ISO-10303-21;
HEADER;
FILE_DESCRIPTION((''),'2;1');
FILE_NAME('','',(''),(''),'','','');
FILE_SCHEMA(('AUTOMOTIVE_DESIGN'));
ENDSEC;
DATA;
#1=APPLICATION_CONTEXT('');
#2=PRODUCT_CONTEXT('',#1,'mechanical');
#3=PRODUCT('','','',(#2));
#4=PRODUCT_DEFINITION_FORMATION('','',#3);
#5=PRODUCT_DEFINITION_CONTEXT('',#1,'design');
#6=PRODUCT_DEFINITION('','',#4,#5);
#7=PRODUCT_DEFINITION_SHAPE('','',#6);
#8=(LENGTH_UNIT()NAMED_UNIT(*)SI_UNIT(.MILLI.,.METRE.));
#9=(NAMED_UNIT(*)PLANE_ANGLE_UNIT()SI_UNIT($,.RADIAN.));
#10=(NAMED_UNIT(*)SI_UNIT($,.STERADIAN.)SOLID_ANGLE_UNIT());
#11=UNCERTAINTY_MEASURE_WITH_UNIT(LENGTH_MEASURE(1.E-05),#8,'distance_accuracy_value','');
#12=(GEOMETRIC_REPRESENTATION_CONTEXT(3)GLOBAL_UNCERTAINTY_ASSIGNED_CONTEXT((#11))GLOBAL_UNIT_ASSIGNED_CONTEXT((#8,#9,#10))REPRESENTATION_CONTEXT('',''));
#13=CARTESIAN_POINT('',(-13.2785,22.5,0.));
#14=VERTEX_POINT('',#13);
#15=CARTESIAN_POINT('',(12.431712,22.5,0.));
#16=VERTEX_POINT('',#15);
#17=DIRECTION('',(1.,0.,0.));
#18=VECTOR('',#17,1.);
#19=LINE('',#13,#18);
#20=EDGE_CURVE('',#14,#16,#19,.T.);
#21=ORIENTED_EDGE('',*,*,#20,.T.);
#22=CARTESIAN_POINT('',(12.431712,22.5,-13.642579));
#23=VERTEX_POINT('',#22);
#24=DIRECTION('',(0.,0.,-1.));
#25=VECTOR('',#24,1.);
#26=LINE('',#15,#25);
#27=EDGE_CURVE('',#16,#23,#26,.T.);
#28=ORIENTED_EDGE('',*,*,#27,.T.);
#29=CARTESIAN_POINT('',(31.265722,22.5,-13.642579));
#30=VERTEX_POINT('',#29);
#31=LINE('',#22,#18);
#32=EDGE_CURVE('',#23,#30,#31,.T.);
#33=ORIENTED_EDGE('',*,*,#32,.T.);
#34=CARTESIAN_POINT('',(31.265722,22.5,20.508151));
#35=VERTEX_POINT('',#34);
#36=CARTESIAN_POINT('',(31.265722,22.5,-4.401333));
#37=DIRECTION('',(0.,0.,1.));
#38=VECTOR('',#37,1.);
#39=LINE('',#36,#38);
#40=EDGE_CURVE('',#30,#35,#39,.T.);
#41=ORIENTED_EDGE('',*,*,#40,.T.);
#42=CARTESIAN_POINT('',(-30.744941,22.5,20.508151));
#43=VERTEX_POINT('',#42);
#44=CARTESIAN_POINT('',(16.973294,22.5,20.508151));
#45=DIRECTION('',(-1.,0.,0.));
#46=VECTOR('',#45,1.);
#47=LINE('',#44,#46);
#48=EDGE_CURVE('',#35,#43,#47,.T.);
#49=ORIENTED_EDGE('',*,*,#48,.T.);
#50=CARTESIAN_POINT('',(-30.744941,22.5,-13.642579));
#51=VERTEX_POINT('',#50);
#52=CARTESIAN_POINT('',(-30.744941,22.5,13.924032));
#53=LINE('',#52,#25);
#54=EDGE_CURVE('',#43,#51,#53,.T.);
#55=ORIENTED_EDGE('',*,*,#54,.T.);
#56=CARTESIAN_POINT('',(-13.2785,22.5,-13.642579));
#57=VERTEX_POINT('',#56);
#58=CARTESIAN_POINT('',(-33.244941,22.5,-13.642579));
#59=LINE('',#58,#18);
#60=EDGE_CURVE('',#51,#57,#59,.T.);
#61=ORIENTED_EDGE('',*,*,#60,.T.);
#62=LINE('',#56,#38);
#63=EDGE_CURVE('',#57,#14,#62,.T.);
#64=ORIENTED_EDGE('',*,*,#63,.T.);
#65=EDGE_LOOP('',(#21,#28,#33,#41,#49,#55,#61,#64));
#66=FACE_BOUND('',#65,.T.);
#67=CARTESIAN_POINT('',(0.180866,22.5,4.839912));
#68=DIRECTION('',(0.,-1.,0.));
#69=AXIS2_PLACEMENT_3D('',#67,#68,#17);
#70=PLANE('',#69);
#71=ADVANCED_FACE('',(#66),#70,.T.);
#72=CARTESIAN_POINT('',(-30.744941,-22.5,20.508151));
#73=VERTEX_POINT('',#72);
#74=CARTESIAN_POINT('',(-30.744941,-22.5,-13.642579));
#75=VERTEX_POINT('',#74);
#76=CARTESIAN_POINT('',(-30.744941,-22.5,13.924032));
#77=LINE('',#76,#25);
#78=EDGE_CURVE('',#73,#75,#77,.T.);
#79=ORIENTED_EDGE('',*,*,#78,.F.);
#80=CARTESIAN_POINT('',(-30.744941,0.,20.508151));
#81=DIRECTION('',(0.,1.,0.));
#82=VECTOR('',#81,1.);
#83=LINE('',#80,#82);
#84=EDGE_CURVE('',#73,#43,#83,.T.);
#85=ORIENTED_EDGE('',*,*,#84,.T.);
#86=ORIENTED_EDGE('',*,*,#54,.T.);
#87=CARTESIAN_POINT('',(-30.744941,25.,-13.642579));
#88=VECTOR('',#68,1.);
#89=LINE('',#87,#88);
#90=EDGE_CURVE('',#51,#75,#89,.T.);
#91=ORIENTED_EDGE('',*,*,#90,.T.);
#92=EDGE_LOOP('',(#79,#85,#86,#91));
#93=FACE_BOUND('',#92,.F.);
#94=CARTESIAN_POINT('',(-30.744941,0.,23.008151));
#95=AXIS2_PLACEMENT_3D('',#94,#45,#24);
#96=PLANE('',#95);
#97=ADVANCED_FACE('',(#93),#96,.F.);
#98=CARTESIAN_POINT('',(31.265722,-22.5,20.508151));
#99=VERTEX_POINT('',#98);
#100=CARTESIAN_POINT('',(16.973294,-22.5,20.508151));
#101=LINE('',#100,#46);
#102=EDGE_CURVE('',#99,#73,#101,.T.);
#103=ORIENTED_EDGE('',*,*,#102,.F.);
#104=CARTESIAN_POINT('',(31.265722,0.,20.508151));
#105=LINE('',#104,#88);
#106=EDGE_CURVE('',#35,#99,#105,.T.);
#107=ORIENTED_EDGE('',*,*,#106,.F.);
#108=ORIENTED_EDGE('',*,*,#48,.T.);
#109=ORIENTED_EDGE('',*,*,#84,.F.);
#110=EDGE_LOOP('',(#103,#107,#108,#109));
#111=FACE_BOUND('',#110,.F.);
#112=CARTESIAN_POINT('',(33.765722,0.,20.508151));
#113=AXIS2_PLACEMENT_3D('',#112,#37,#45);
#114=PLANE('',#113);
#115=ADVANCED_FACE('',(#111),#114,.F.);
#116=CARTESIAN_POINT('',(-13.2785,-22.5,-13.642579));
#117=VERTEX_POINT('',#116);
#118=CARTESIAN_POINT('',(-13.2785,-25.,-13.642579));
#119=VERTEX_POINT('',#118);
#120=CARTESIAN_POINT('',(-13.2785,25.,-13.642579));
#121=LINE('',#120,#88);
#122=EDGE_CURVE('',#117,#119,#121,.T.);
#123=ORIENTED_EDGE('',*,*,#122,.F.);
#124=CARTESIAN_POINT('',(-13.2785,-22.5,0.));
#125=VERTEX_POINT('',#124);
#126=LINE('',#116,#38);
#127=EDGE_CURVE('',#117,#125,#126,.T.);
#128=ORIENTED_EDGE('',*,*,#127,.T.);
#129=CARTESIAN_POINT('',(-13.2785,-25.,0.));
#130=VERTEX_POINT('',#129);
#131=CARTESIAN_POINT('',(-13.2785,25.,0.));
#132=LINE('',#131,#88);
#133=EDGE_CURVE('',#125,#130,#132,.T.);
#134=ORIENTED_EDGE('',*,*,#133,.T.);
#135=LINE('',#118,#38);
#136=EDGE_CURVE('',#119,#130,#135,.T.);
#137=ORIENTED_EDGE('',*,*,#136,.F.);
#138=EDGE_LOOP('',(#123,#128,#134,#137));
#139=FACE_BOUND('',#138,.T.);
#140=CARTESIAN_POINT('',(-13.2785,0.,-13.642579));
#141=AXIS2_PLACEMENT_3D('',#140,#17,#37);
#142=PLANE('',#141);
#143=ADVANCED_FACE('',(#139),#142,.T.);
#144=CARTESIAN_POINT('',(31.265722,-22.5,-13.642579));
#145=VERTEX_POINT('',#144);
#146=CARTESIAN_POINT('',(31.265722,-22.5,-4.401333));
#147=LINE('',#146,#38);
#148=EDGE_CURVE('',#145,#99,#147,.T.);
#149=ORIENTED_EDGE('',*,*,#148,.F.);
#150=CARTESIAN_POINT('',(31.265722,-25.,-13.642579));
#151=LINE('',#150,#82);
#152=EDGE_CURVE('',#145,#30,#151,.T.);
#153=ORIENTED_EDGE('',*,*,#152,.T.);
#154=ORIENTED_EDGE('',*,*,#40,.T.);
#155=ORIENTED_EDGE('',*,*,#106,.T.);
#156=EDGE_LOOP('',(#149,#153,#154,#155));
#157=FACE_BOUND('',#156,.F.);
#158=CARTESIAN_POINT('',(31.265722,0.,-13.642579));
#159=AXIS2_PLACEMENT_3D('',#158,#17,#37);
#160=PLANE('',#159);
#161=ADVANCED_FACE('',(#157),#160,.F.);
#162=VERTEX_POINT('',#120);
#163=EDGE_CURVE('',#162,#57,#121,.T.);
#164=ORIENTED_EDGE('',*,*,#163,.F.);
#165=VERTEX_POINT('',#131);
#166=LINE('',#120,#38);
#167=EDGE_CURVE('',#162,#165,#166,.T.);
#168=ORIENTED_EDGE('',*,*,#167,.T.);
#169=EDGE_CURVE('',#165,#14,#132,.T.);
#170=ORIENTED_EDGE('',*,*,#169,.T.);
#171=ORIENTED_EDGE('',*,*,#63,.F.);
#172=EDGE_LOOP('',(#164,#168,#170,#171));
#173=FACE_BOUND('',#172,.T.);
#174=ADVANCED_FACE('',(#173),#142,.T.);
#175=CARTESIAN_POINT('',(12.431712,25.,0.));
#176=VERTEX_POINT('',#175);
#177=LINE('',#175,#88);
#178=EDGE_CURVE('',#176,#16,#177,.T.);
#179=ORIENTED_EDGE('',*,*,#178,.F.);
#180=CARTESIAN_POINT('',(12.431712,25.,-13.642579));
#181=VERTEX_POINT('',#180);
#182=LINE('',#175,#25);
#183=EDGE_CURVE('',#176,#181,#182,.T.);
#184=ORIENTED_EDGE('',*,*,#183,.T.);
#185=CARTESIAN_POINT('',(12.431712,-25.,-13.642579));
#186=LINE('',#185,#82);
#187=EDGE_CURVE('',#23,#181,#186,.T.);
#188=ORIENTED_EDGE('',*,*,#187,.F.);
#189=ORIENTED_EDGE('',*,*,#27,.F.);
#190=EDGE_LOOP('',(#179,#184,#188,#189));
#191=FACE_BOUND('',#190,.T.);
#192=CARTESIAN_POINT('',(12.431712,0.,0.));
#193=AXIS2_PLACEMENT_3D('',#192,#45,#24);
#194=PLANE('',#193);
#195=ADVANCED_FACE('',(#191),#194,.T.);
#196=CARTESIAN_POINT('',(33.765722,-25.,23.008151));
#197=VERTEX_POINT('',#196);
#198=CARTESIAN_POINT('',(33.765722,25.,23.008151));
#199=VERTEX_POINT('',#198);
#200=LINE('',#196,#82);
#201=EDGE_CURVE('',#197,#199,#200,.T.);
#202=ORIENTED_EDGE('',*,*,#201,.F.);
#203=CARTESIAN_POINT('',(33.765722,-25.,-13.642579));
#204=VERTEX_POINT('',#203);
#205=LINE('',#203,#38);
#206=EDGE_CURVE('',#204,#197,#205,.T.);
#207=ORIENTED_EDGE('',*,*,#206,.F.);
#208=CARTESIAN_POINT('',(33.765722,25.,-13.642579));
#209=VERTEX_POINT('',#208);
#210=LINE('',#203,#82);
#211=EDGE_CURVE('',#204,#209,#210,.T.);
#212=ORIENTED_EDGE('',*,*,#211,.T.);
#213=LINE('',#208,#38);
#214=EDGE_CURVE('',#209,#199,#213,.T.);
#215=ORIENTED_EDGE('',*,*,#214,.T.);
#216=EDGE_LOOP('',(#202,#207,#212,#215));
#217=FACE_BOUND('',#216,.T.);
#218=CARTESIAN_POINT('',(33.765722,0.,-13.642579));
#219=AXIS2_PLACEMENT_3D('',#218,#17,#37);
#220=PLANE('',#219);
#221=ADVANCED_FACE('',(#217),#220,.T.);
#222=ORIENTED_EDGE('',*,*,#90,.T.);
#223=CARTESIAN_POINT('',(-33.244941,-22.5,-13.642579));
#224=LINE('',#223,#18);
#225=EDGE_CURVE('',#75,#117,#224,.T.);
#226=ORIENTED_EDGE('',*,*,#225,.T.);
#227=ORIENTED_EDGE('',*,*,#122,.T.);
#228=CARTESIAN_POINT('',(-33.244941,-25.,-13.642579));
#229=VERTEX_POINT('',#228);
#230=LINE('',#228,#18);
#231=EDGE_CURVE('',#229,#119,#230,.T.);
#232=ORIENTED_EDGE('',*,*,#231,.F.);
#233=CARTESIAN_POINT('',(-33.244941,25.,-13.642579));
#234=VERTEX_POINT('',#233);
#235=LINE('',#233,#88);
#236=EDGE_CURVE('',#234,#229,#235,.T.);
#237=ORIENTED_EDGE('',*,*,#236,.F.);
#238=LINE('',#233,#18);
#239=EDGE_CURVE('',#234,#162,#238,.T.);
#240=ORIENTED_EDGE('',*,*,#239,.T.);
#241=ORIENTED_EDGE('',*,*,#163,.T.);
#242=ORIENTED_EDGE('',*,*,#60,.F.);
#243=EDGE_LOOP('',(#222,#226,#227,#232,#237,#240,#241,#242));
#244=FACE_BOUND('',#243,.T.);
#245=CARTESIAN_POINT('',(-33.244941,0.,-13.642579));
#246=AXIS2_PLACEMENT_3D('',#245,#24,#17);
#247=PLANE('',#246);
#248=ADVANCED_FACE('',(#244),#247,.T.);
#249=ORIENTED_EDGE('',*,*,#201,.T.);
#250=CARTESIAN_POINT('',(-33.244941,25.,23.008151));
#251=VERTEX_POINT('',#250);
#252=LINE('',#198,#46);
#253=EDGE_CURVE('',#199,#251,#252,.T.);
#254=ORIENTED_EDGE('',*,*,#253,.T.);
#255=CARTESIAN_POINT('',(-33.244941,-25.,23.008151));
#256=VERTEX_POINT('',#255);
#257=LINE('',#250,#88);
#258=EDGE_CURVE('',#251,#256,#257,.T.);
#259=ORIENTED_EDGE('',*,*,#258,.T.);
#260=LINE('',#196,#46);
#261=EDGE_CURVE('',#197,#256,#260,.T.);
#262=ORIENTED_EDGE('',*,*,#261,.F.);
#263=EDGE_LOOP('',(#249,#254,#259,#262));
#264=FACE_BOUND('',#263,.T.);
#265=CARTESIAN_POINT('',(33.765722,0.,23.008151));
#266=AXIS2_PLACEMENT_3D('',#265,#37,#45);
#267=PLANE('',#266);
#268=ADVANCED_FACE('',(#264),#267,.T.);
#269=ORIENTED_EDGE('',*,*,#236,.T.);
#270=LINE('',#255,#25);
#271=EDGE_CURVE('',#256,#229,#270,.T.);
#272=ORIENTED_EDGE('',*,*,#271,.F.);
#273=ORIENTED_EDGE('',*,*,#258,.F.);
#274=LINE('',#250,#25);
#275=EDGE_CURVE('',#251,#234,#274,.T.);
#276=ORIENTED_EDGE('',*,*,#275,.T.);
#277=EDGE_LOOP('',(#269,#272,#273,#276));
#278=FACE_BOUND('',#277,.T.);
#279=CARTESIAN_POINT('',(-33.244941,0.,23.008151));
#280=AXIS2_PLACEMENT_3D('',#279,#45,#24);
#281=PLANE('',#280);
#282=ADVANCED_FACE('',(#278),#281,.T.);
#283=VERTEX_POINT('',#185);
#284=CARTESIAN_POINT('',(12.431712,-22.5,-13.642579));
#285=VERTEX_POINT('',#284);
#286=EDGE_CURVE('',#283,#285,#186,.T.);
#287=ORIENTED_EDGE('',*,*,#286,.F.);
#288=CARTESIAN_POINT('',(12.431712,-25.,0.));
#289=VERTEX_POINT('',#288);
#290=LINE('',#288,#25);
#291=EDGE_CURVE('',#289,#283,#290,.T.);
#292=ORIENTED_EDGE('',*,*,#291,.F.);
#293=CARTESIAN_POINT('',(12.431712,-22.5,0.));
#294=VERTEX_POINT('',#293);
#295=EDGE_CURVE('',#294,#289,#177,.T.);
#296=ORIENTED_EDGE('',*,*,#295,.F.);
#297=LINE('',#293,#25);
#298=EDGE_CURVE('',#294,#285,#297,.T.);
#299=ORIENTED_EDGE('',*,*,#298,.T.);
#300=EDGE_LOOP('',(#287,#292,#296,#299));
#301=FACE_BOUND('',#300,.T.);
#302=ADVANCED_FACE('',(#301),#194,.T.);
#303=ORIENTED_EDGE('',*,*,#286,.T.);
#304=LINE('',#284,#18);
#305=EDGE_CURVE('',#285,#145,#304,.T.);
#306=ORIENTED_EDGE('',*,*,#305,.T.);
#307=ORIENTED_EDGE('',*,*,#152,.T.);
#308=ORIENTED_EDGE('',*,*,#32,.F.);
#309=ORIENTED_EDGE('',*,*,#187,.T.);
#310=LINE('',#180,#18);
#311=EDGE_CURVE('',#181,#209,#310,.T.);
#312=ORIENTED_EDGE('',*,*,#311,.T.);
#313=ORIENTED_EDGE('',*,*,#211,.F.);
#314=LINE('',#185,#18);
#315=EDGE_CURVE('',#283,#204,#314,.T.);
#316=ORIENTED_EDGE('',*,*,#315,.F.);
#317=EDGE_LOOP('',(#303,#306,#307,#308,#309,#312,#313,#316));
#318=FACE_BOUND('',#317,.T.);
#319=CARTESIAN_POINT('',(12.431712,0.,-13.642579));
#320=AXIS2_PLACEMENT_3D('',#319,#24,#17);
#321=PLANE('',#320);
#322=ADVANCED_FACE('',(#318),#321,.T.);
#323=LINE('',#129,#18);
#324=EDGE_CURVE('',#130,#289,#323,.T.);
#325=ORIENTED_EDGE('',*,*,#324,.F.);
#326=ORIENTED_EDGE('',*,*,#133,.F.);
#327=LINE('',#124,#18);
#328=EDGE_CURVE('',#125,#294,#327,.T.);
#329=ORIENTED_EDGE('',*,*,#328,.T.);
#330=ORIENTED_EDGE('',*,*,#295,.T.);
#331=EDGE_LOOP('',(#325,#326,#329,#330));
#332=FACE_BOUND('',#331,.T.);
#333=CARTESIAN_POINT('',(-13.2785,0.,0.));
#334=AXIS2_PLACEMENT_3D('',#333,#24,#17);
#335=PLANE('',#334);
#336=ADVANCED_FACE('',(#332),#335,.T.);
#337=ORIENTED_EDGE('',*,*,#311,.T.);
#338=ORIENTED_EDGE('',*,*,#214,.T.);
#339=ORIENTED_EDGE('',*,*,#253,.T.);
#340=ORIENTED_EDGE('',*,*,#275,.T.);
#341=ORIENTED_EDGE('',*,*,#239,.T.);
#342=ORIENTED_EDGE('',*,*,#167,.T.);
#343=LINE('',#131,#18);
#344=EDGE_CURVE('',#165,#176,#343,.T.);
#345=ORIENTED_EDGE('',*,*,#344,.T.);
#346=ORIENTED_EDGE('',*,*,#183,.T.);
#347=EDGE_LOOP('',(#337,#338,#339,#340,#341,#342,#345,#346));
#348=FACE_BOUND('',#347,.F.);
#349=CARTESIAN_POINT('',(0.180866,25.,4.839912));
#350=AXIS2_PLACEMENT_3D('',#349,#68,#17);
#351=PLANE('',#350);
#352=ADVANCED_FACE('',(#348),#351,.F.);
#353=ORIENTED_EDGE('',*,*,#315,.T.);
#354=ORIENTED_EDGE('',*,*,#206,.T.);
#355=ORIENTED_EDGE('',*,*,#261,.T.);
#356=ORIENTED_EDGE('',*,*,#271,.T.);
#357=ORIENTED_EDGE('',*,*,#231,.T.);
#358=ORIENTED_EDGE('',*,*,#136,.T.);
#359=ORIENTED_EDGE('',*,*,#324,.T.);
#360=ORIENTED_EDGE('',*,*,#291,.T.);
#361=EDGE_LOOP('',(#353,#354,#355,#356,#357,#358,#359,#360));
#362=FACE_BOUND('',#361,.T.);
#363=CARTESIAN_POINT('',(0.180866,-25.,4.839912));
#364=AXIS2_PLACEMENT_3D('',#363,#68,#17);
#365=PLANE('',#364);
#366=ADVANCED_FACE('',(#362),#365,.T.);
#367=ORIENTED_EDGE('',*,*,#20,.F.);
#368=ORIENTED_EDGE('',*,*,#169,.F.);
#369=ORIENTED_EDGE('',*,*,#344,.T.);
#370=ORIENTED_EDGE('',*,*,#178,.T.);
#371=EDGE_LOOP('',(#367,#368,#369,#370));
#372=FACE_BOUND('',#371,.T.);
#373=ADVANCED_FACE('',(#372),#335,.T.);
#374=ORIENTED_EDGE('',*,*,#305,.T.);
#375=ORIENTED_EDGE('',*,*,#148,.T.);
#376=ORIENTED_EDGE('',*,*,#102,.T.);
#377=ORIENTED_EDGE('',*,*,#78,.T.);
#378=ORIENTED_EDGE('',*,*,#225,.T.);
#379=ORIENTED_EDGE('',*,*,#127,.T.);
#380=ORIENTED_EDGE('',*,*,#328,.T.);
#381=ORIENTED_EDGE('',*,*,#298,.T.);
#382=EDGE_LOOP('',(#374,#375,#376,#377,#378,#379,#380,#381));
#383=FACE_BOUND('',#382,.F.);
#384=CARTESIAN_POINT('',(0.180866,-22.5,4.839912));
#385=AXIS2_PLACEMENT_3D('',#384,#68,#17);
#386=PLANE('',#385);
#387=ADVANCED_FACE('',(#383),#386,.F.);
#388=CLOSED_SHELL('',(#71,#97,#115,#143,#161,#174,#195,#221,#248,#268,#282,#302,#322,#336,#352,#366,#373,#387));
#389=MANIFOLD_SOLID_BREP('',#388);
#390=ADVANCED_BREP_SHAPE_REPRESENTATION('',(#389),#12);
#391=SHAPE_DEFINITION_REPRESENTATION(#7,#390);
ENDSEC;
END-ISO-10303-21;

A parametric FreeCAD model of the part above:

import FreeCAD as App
import Part
import Sketcher
Q = App.Units.Quantity


def faces_at(feature, points):
    """Names of the faces that lie closest to the given points."""
    faces = feature.Shape.Faces
    near = lambda p: min(range(len(faces)), key=lambda i: faces[i].distToShape(Part.Vertex(*p))[0])
    return sorted({f"Face{near(p) + 1}" for p in points})

doc = App.newDocument("Part")
body = doc.addObject("PartDesign::Body", "Body")

sketch1 = body.newObject("Sketcher::SketchObject", "Sketch")
sketch1.AttachmentSupport = (doc.getObject("XZ_Plane"), [""])
sketch1.MapMode = "FlatFace"
sketch1.addGeometry([
    Part.LineSegment(App.Vector(34, 23, 0), App.Vector(-33, 23, 0)),
    Part.LineSegment(App.Vector(-33, 23, 0), App.Vector(-33, -14, 0)),
    Part.LineSegment(App.Vector(-33, -14, 0), App.Vector(-13, -14, 0)),
    Part.LineSegment(App.Vector(-13, -14, 0), App.Vector(-13, 0, 0)),
    Part.LineSegment(App.Vector(-13, 0, 0), App.Vector(12, 0, 0)),
    Part.LineSegment(App.Vector(12, 0, 0), App.Vector(12, -14, 0)),
    Part.LineSegment(App.Vector(12, -14, 0), App.Vector(34, -14, 0)),
    Part.LineSegment(App.Vector(34, -14, 0), App.Vector(34, 23, 0)),
], False)
sketch1.addConstraint([
    Sketcher.Constraint("Coincident", 0, 2, 1, 1),
    Sketcher.Constraint("Coincident", 1, 2, 2, 1),
    Sketcher.Constraint("Coincident", 2, 2, 3, 1),
    Sketcher.Constraint("Coincident", 3, 2, 4, 1),
    Sketcher.Constraint("Coincident", 4, 2, 5, 1),
    Sketcher.Constraint("Coincident", 5, 2, 6, 1),
    Sketcher.Constraint("Coincident", 6, 2, 7, 1),
    Sketcher.Constraint("Coincident", 7, 2, 0, 1),
    Sketcher.Constraint("Horizontal", 0),
    Sketcher.Constraint("Vertical", 1),
    Sketcher.Constraint("Horizontal", 2),
    Sketcher.Constraint("Vertical", 3),
    Sketcher.Constraint("Horizontal", 4),
    Sketcher.Constraint("Vertical", 5),
    Sketcher.Constraint("Horizontal", 6),
    Sketcher.Constraint("Vertical", 7),
    Sketcher.Constraint("PointOnObject", 3, 2, -1),
    Sketcher.Constraint("Horizontal", 2, 2, 5, 2),
    Sketcher.Constraint("DistanceX", 2, 1, 2, 2, Q("19.966441 mm")),
    Sketcher.Constraint("DistanceX", 4, 1, 4, 2, Q("25.710212 mm")),
    Sketcher.Constraint("DistanceX", 6, 1, 6, 2, Q("21.33401 mm")),
    Sketcher.Constraint("DistanceY", 1, 2, 1, 1, Q("36.65073 mm")),
    Sketcher.Constraint("DistanceY", 3, 1, 3, 2, Q("13.642579 mm")),
    Sketcher.Constraint("DistanceX", 2, 2, -1, 1, Q("13.2785 mm")),
])
pad1 = body.newObject("PartDesign::Pad", "Pad")
pad1.Profile = sketch1
pad1.Length = 50
pad1.Midplane = True
doc.recompute()

thickness = body.newObject("PartDesign::Thickness", "Thickness")
thickness.Base = (pad1, faces_at(pad1, [
    (-0.423, 0, 0),
    (23.099, 0, -13.643),
    (-23.262, 0, -13.643),
    (-13.278, 0, -6.821),
    (12.432, 0, -6.821),
]))
thickness.Value = 2.5
thickness.Reversed = True
thickness.Join = "Arc"

doc.recompute()
